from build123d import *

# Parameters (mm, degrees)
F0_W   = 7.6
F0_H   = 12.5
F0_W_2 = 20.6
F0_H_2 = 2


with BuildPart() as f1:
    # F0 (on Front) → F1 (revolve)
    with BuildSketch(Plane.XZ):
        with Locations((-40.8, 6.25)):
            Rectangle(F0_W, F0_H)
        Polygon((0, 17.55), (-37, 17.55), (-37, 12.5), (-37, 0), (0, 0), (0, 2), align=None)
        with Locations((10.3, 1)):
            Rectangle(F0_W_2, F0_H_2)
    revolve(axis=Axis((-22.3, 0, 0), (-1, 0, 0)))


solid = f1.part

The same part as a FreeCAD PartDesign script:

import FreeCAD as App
import Part
import Sketcher


def add_polygon(sketch, points):
    """Adds a closed chain of lines whose ends are joined by coincident constraints."""
    first, n = sketch.GeometryCount, len(points)
    for a, b in zip(points, points[1:] + points[:1]):
        sketch.addGeometry(Part.LineSegment(App.Vector(*a, 0), App.Vector(*b, 0)), False)
    for i in range(n):
        sketch.addConstraint(Sketcher.Constraint("Coincident", first + i, 2, first + (i + 1) % n, 1))

doc = App.newDocument("Part")
body = doc.addObject("PartDesign::Body", "Body")

# Sketch on XZ plane
sketch1 = body.newObject("Sketcher::SketchObject", "Sketch")
sketch1.AttachmentSupport = (doc.getObject("XZ_Plane"), [""])
sketch1.MapMode = "FlatFace"
add_polygon(sketch1, [(-44.6, 12.5), (-44.6, 0), (20.6, 0), (20.6, 2), (0, 2), (0, 17.55), (-37, 17.55), (-37, 12.5)])  # lines 0-7
sketch1.addConstraint([
    Sketcher.Constraint("Vertical", 0),
    Sketcher.Constraint("Horizontal", 1),
    Sketcher.Constraint("Vertical", 2),
    Sketcher.Constraint("Horizontal", 3),
    Sketcher.Constraint("Vertical", 4),
    Sketcher.Constraint("Horizontal", 5),
    Sketcher.Constraint("Vertical", 6),
    Sketcher.Constraint("Horizontal", 7),
    Sketcher.Constraint("PointOnObject", 0, 2, -1),
    Sketcher.Constraint("PointOnObject", 3, 2, -2),
    Sketcher.Constraint("DistanceX", 5, 2, 5, 1, 37.0),
    Sketcher.Constraint("DistanceY", 2, 1, 2, 2, 2.0),
    Sketcher.Constraint("DistanceX", 1, 1, 1, 2, 65.2),
    Sketcher.Constraint("DistanceX", 3, 2, 3, 1, 20.6),
    Sketcher.Constraint("DistanceY", 0, 2, 0, 1, 12.5),
    Sketcher.Constraint("DistanceY", 4, 1, 4, 2, 15.55),
])
revolution = body.newObject("PartDesign::Revolution", "Revolution")
revolution.Profile = sketch1
revolution.ReferenceAxis = (sketch1, ["H_Axis"])
revolution.Angle = 360

doc.recompute()
